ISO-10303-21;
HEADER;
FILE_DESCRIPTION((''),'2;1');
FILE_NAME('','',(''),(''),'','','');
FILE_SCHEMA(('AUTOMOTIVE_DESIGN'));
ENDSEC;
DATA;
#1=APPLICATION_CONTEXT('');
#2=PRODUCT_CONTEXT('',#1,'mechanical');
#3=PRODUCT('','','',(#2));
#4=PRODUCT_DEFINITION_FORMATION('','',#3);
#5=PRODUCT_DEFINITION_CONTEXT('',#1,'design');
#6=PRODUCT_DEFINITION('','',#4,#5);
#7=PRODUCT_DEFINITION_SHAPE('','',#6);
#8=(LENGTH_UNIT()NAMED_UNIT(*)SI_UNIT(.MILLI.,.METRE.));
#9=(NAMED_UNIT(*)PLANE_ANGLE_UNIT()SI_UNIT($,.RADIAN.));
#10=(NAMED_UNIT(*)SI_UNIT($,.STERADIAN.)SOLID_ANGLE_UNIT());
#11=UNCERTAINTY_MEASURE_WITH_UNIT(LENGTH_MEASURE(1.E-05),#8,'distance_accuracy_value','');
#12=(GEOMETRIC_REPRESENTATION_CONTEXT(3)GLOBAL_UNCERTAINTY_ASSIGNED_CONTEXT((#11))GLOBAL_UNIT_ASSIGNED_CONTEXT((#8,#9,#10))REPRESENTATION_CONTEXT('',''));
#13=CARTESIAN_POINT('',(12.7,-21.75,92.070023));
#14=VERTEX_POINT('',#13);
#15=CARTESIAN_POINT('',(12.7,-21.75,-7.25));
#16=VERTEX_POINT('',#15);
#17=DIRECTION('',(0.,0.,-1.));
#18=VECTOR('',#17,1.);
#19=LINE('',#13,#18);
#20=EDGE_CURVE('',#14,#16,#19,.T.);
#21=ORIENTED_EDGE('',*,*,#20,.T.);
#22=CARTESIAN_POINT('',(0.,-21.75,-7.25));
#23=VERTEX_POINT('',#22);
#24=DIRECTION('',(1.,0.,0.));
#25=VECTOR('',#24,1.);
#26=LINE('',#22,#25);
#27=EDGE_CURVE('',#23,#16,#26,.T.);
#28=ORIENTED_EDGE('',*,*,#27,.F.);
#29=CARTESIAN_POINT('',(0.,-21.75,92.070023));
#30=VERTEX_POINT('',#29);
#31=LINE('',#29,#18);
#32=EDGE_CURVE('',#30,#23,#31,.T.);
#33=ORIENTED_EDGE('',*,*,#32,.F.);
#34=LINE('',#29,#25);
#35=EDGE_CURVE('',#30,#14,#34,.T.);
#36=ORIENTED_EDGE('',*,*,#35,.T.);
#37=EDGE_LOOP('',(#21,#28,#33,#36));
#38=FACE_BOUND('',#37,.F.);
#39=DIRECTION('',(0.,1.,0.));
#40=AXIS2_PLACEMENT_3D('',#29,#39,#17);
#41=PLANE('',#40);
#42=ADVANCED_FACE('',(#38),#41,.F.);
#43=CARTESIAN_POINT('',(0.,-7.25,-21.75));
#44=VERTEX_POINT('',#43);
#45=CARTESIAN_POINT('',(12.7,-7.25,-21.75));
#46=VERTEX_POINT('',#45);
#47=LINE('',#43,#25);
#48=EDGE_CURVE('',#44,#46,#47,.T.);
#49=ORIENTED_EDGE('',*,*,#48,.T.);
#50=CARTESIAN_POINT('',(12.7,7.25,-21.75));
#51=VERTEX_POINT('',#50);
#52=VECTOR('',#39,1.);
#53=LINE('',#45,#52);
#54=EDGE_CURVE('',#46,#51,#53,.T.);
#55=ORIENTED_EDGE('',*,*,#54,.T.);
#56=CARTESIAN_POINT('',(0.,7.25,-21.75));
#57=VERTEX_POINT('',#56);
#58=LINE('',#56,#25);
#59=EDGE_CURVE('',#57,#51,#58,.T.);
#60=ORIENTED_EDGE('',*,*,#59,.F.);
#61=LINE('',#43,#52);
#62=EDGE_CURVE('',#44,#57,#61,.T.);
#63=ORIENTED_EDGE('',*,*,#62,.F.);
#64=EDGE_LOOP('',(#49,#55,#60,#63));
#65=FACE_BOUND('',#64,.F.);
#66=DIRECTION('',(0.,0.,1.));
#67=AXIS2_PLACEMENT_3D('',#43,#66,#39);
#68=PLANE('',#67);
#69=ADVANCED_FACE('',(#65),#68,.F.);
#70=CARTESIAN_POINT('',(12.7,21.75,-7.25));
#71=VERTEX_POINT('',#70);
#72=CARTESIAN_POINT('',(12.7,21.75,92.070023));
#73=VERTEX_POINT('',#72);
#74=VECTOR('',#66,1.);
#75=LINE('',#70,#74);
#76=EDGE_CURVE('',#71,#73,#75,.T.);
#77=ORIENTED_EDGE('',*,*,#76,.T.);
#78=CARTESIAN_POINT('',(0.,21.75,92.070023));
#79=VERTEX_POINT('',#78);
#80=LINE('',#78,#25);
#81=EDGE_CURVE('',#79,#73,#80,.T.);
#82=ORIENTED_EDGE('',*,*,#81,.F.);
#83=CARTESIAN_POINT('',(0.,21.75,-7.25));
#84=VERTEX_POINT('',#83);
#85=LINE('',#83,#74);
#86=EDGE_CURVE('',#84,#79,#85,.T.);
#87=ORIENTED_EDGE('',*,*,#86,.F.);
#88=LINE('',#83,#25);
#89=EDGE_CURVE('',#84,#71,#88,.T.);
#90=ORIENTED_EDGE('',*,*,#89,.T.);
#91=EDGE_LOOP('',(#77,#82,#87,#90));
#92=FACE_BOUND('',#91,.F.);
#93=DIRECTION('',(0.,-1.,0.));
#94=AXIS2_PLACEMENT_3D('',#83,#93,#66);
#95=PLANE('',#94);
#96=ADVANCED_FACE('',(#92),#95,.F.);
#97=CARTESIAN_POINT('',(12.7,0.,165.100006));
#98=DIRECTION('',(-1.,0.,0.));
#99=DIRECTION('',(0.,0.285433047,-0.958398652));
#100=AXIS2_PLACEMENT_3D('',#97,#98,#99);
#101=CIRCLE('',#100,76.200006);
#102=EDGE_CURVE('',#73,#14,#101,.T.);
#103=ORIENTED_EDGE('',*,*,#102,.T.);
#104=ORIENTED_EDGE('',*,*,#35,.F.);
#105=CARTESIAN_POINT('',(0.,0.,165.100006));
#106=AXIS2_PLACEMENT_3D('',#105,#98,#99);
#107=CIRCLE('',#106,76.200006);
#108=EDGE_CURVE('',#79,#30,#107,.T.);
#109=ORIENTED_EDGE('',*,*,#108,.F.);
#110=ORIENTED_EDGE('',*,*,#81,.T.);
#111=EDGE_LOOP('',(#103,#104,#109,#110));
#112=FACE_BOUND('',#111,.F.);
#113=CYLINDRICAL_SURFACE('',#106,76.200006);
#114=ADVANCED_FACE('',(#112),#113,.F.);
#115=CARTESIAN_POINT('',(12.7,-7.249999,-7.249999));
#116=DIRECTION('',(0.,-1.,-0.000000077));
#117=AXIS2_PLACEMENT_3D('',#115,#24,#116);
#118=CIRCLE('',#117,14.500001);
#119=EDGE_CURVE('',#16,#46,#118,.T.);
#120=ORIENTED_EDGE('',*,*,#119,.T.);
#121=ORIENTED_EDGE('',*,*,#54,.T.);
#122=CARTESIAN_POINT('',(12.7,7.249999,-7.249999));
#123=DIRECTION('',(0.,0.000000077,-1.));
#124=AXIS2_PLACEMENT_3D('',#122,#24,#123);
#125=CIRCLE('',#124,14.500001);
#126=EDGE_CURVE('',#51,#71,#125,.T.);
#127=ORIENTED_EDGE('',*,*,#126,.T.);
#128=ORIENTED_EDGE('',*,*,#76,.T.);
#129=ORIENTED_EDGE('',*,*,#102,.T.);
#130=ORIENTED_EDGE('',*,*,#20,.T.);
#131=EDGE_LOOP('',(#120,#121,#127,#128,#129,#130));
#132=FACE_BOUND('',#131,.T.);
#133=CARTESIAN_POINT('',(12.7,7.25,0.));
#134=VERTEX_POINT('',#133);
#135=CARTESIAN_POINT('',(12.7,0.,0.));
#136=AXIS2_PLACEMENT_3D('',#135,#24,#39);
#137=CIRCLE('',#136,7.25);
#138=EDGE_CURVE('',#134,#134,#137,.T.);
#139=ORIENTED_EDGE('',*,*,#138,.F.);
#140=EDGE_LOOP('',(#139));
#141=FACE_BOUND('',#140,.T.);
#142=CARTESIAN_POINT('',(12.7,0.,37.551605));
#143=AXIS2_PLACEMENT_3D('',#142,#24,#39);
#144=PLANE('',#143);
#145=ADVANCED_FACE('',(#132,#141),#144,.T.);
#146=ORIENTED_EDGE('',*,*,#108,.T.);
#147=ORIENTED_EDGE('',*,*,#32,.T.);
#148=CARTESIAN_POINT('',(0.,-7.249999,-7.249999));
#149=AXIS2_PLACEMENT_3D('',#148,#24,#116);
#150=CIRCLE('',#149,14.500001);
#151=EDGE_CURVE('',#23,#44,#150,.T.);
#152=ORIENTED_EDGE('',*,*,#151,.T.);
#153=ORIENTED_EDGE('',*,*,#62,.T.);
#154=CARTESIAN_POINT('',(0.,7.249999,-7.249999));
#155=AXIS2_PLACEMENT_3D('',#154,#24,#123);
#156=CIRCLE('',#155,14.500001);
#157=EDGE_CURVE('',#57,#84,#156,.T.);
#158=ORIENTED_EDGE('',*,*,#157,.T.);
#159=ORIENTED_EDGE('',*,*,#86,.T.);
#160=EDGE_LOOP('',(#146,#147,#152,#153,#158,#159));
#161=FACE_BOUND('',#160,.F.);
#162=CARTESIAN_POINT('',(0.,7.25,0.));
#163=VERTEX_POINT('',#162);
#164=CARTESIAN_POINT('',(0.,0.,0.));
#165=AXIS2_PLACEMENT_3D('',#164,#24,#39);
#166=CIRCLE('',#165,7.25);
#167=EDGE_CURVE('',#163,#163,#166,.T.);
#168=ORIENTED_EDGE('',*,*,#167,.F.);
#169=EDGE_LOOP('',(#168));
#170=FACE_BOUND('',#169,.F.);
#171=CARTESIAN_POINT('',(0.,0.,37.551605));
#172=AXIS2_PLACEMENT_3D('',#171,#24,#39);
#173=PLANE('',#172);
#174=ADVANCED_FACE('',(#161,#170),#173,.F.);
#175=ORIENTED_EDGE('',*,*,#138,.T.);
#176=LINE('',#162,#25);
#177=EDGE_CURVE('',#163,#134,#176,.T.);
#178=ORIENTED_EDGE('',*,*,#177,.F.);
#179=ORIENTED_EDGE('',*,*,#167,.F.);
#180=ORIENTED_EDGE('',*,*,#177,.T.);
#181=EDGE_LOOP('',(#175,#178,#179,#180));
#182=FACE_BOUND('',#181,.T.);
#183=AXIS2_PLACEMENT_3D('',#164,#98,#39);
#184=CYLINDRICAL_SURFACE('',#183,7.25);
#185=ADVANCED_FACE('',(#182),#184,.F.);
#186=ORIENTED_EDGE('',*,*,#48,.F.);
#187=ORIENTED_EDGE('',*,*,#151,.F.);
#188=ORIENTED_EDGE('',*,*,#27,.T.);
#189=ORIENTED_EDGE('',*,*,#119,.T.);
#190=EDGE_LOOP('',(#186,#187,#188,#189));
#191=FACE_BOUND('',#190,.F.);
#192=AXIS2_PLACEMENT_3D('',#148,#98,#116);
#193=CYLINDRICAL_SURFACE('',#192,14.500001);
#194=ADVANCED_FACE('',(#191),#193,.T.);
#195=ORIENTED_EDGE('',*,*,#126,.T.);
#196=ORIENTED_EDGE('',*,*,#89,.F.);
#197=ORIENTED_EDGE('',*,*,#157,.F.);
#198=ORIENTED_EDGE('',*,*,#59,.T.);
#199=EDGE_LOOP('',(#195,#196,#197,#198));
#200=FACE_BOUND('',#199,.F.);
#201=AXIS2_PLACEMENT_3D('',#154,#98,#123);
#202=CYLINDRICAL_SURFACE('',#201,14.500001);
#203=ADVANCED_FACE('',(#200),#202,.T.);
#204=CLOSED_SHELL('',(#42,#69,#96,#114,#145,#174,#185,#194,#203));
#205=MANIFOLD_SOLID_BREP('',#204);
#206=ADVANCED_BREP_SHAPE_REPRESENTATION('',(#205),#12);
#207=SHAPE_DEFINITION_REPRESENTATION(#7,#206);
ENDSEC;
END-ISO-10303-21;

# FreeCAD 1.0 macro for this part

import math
import FreeCAD as App
import Part
import Sketcher

V = App.Vector

doc = App.newDocument("Part")
body = doc.addObject("PartDesign::Body", "Body")

sketch1 = body.newObject("Sketcher::SketchObject", "Sketch")
sketch1.AttachmentSupport = (doc.getObject("YZ_Plane"), [""])
sketch1.MapMode = "FlatFace"
sketch1.addGeometry([
    Part.ArcOfCircle(Part.Circle(V(-7, -7, 0), V(0, 0, 1), 15), math.radians(-180), math.radians(-90)),
    Part.LineSegment(V(-7, -22, 0), V(7, -22, 0)),
    Part.ArcOfCircle(Part.Circle(V(7, -7, 0), V(0, 0, 1), 15), math.radians(-90), math.radians(0)),
    Part.LineSegment(V(22, -7, 0), V(22, 92, 0)),
    Part.ArcOfCircle(Part.Circle(V(0, 165, 0), V(0, 0, 1), 76), math.radians(-107), math.radians(-73)),
    Part.LineSegment(V(-22, 92, 0), V(-22, -7, 0)),
    Part.Circle(V(0, 0, 0), V(0, 0, 1), 7),
], False)
sketch1.addConstraint([
    Sketcher.Constraint("Tangent", 0, 2, 1, 1),
    Sketcher.Constraint("Tangent", 1, 2, 2, 1),
    Sketcher.Constraint("Tangent", 2, 2, 3, 1),
    Sketcher.Constraint("Coincident", 3, 2, 4, 2),
    Sketcher.Constraint("Coincident", 4, 1, 5, 1),
    Sketcher.Constraint("Tangent", 5, 2, 0, 1),
    Sketcher.Constraint("Horizontal", 1),
    Sketcher.Constraint("Vertical", 3),
    Sketcher.Constraint("Vertical", 5),
    Sketcher.Constraint("Coincident", 6, 3, -1, 1),
    Sketcher.Constraint("Equal", 0, 2),
    Sketcher.Constraint("Symmetric", 3, 2, 4, 1, -2),
    Sketcher.Constraint("Diameter", 6, 14.5),
    Sketcher.Constraint("Radius", 0, 14.500001),
    Sketcher.Constraint("DistanceX", 1, 1, 1, 2, 14.5),
    Sketcher.Constraint("DistanceY", 0, 3, -1, 1, 7.249999),
    Sketcher.Constraint("Radius", 4, 76.200006),
    Sketcher.Constraint("DistanceY", 3, 1, 3, 2, 99.320023),
])
pad1 = body.newObject("PartDesign::Pad", "Pad")
pad1.Profile = sketch1
pad1.Length = 12.7

doc.recompute()
